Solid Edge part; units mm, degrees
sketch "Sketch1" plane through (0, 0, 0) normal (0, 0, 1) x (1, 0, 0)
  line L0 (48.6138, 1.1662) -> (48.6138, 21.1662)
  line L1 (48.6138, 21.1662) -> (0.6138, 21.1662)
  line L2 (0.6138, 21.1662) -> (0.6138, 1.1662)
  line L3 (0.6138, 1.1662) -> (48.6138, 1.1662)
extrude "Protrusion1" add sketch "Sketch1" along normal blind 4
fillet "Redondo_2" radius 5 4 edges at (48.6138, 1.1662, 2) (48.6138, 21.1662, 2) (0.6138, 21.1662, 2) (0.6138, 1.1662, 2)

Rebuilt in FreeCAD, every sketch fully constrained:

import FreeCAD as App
import Part
import Sketcher


def edges_at(feature, points):
    """Names of the edges that pass closest to the given points."""
    edges = feature.Shape.Edges
    near = lambda p: min(range(len(edges)), key=lambda i: edges[i].distToShape(Part.Vertex(*p))[0])
    return sorted({f"Edge{near(p) + 1}" for p in points})

doc = App.newDocument("Part")
body = doc.addObject("PartDesign::Body", "Body")

# Sketch on XY plane
sketch1 = body.newObject("Sketcher::SketchObject", "Sketch")
sketch1.AttachmentSupport = (doc.getObject("XY_Plane"), [""])
sketch1.MapMode = "FlatFace"
sketch1.addGeometry([
    Part.LineSegment(App.Vector(0.6138, 1.1662, 0), App.Vector(48.6138, 1.1662, 0)),
    Part.LineSegment(App.Vector(48.6138, 1.1662, 0), App.Vector(48.6138, 21.1662, 0)),
    Part.LineSegment(App.Vector(48.6138, 21.1662, 0), App.Vector(0.6138, 21.1662, 0)),
    Part.LineSegment(App.Vector(0.6138, 21.1662, 0), App.Vector(0.6138, 1.1662, 0)),
], False)
sketch1.addConstraint([
    Sketcher.Constraint("Coincident", 0, 2, 1, 1),
    Sketcher.Constraint("Coincident", 1, 2, 2, 1),
    Sketcher.Constraint("Coincident", 2, 2, 3, 1),
    Sketcher.Constraint("Coincident", 3, 2, 0, 1),
    Sketcher.Constraint("Horizontal", 0),
    Sketcher.Constraint("Vertical", 1),
    Sketcher.Constraint("Horizontal", 2),
    Sketcher.Constraint("Vertical", 3),
    Sketcher.Constraint("DistanceX", 0, 1, 0, 2, 48.0),
    Sketcher.Constraint("DistanceY", 1, 1, 1, 2, 20.0),
    Sketcher.Constraint("DistanceX", -1, 1, 0, 2, 48.6138),
    Sketcher.Constraint("DistanceY", -1, 1, 0, 2, 1.1662),
])
pad1 = body.newObject("PartDesign::Pad", "Pad")
pad1.Profile = sketch1
pad1.Length = 4
doc.recompute()

fillet = body.newObject("PartDesign::Fillet", "Fillet")
fillet.Base = (pad1, edges_at(pad1, [
    (48.614, 1.166, 2),
    (48.614, 21.166, 2),
    (0.614, 21.166, 2),
    (0.614, 1.166, 2),
]))
fillet.Radius = 5

doc.recompute()
